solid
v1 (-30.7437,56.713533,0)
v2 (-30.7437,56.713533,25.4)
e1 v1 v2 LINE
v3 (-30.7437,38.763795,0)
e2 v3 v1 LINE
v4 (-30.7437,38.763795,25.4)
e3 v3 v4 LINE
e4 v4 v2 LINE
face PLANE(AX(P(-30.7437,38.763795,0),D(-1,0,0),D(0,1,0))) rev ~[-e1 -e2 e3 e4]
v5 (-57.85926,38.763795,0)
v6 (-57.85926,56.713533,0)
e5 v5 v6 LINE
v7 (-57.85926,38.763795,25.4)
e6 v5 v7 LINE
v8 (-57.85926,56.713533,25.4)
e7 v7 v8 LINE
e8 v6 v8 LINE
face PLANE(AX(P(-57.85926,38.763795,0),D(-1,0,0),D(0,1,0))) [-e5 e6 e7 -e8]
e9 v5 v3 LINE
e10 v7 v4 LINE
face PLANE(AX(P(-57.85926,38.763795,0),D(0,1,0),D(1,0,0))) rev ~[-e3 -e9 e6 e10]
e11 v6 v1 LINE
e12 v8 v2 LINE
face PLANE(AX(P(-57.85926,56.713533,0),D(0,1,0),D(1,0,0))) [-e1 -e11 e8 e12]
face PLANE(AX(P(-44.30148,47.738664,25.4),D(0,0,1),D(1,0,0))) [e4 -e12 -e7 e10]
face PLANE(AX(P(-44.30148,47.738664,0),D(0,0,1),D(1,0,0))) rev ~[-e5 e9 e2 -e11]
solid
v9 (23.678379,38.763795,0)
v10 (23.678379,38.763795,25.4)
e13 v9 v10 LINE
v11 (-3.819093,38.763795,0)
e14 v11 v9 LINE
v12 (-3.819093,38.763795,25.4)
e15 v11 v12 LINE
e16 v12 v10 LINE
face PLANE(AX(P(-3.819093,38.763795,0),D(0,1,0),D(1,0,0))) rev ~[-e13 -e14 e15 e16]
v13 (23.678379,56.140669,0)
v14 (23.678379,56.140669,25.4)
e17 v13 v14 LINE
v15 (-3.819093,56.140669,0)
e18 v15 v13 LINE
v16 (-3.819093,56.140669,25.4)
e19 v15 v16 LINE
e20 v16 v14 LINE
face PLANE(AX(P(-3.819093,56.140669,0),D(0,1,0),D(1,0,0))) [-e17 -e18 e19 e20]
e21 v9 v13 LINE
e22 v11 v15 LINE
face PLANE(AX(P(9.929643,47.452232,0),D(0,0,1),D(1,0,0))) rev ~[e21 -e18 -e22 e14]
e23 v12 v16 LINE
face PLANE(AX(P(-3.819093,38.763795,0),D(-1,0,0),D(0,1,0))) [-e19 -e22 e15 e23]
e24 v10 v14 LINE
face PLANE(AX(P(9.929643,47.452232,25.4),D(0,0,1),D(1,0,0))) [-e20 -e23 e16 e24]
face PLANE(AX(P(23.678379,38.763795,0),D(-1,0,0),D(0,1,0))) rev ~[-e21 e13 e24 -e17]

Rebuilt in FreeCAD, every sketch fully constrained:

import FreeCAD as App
import Part
import Sketcher
Q = App.Units.Quantity


def add_polygon(sketch, points):
    """Adds a closed chain of lines whose ends are joined by coincident constraints."""
    first, n = sketch.GeometryCount, len(points)
    for a, b in zip(points, points[1:] + points[:1]):
        sketch.addGeometry(Part.LineSegment(App.Vector(*a, 0), App.Vector(*b, 0)), False)
    for i in range(n):
        sketch.addConstraint(Sketcher.Constraint("Coincident", first + i, 2, first + (i + 1) % n, 1))

doc = App.newDocument("Part")
params = doc.addObject("Spreadsheet::Sheet", "Params")
for row, (alias, value) in enumerate([
    ("pad1_length", "1 in"),
], start=1):
    params.set(f"A{row}", alias)
    params.set(f"B{row}", "=" + value)
    params.setAlias(f"B{row}", alias)

body = doc.addObject("PartDesign::Body", "Body")
body.AllowCompound = True

# Sketch on XY plane
sketch1 = body.newObject("Sketcher::SketchObject", "Sketch")
sketch1.AttachmentSupport = (doc.getObject("XY_Plane"), [""])
sketch1.MapMode = "FlatFace"
add_polygon(sketch1, [(-3.819093, 56.140669), (-3.819093, 38.763795), (23.678379, 38.763795), (23.678379, 56.140669)])  # lines 0-3
add_polygon(sketch1, [(-57.85926, 56.713533), (-57.85926, 38.763795), (-30.7437, 38.763795), (-30.7437, 56.713533)])  # lines 4-7
sketch1.addConstraint([
    Sketcher.Constraint("Vertical", 0),
    Sketcher.Constraint("Horizontal", 1),
    Sketcher.Constraint("Vertical", 2),
    Sketcher.Constraint("Horizontal", 3),
    Sketcher.Constraint("Vertical", 4),
    Sketcher.Constraint("Horizontal", 5),
    Sketcher.Constraint("Vertical", 6),
    Sketcher.Constraint("Horizontal", 7),
    Sketcher.Constraint("Horizontal", 1, 2, 4, 2),
    Sketcher.Constraint("DistanceX", 1, 1, 1, 2, Q("27.497472 mm")),
    Sketcher.Constraint("DistanceX", 5, 1, 5, 2, Q("27.115561 mm")),
    Sketcher.Constraint("DistanceX", 5, 2, -1, 1, Q("30.7437 mm")),
    Sketcher.Constraint("DistanceY", 0, 2, 0, 1, Q("17.376874 mm")),
    Sketcher.Constraint("DistanceY", 4, 2, 4, 1, Q("17.949738 mm")),
    Sketcher.Constraint("DistanceX", -1, 1, 1, 2, Q("23.678379 mm")),
    Sketcher.Constraint("DistanceY", -1, 1, 2, 2, Q("56.140669 mm")),
])
pad1 = body.newObject("PartDesign::Pad", "Pad")
pad1.Profile = sketch1
pad1.setExpression("Length", "Params.pad1_length")

doc.recompute()
